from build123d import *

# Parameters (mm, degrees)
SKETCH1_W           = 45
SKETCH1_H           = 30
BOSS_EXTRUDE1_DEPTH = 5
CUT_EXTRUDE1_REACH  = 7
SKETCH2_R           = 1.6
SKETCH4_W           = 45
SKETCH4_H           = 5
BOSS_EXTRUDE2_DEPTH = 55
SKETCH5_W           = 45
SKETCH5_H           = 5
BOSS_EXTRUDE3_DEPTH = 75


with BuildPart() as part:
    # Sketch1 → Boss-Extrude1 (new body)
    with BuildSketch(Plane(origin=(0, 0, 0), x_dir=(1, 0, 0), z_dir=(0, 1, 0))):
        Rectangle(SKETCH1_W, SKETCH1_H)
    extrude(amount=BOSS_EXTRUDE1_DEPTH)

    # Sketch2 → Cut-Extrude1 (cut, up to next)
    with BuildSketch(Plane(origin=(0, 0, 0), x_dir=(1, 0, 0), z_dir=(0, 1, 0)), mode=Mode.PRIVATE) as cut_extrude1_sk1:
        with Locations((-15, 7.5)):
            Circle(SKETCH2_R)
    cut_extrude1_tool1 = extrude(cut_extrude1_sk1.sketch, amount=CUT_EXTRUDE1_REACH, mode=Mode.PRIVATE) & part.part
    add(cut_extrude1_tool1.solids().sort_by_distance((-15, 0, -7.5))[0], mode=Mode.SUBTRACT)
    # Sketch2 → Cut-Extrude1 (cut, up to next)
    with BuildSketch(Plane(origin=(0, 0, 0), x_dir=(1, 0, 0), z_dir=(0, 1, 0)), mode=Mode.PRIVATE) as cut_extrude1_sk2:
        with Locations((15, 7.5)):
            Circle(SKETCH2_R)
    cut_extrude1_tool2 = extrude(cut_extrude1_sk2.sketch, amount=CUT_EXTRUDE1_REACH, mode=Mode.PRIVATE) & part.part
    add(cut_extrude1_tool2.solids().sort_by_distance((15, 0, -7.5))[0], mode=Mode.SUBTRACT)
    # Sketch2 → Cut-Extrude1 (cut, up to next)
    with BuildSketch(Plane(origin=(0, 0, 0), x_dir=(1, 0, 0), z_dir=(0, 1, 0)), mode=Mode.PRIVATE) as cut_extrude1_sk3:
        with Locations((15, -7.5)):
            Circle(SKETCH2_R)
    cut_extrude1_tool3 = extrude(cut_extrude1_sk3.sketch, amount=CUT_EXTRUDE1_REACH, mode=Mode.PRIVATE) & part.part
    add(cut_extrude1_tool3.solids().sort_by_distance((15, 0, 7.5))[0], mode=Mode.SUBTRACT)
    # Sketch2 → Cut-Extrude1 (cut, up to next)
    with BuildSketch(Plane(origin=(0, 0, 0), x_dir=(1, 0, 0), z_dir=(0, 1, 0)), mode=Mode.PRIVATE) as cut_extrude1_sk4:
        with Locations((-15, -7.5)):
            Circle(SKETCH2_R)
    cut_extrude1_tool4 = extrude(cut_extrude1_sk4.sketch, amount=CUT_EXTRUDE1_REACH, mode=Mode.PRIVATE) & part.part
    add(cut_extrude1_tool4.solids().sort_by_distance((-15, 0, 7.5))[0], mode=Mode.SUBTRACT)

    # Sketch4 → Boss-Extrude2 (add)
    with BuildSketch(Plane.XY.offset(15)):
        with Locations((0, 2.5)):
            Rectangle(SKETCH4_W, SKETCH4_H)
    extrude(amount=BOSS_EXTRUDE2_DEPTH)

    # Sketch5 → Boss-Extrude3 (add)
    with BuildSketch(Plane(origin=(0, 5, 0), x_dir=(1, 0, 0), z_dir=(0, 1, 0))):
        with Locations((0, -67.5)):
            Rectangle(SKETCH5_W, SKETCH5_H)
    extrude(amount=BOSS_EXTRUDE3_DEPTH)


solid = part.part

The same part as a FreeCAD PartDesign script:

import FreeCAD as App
import Part
import Sketcher

V = App.Vector
Q = App.Units.Quantity

doc = App.newDocument("Part")
body = doc.addObject("PartDesign::Body", "Body")

# Sketch on XZ plane
sketch1 = body.newObject("Sketcher::SketchObject", "Sketch")
sketch1.AttachmentSupport = (doc.getObject("XZ_Plane"), [""])
sketch1.MapMode = "FlatFace"
sketch1.addGeometry(Part.LineSegment(V(-22.5, -15, 0), V(-22.5, 15, 0)), False)
sketch1.addGeometry(Part.LineSegment(V(-22.5, 15, 0), V(22.5, 15, 0)), False)
sketch1.addGeometry(Part.LineSegment(V(22.5, 15, 0), V(22.5, -15, 0)), False)
sketch1.addGeometry(Part.LineSegment(V(22.5, -15, 0), V(-22.5, -15, 0)), False)
sketch1.addConstraint(Sketcher.Constraint("Coincident", 0, 2, 1, 1))
sketch1.addConstraint(Sketcher.Constraint("Coincident", 1, 2, 2, 1))
sketch1.addConstraint(Sketcher.Constraint("Coincident", 2, 2, 3, 1))
sketch1.addConstraint(Sketcher.Constraint("Coincident", 3, 2, 0, 1))
sketch1.addConstraint(Sketcher.Constraint("Vertical", 0))
sketch1.addConstraint(Sketcher.Constraint("Horizontal", 1))
sketch1.addConstraint(Sketcher.Constraint("Vertical", 2))
sketch1.addConstraint(Sketcher.Constraint("Horizontal", 3))
sketch1.addConstraint(Sketcher.Constraint("Symmetric", 0, 2, 2, 2, -1, 1))
sketch1.addConstraint(Sketcher.Constraint("DistanceX", 1, 1, 1, 2, Q("45 mm")))
sketch1.addConstraint(Sketcher.Constraint("DistanceY", 0, 1, 0, 2, Q("30 mm")))
pad1 = body.newObject("PartDesign::Pad", "Pad")
pad1.Profile = sketch1
pad1.Length = 5
pad1.Reversed = True

# Sketch on XZ plane
sketch2 = body.newObject("Sketcher::SketchObject", "Sketch001")
sketch2.AttachmentSupport = (doc.getObject("XZ_Plane"), [""])
sketch2.MapMode = "FlatFace"
sketch2.addGeometry(Part.Circle(V(-15, -7.5, 0), V(0, 0, 1), 1.6), False)
sketch2.addConstraint(Sketcher.Constraint("Diameter", 0, Q("3.2 mm")))
sketch2.addConstraint(Sketcher.Constraint("DistanceX", 0, 3, -1, 1, Q("15 mm")))
sketch2.addConstraint(Sketcher.Constraint("DistanceY", 0, 3, -1, 1, Q("7.5 mm")))
pocket1 = body.newObject("PartDesign::Pocket", "Pocket")
pocket1.Profile = sketch2
pocket1.Type = "UpToFirst"

# Sketch on XZ plane
sketch3 = body.newObject("Sketcher::SketchObject", "Sketch002")
sketch3.AttachmentSupport = (doc.getObject("XZ_Plane"), [""])
sketch3.MapMode = "FlatFace"
sketch3.addGeometry(Part.Circle(V(15, -7.5, 0), V(0, 0, 1), 1.6), False)
sketch3.addConstraint(Sketcher.Constraint("Diameter", 0, Q("3.2 mm")))
sketch3.addConstraint(Sketcher.Constraint("DistanceX", -1, 1, 0, 3, Q("15 mm")))
sketch3.addConstraint(Sketcher.Constraint("DistanceY", 0, 3, -1, 1, Q("7.5 mm")))
pocket2 = body.newObject("PartDesign::Pocket", "Pocket001")
pocket2.Profile = sketch3
pocket2.Type = "UpToFirst"

# Sketch on XZ plane
sketch4 = body.newObject("Sketcher::SketchObject", "Sketch003")
sketch4.AttachmentSupport = (doc.getObject("XZ_Plane"), [""])
sketch4.MapMode = "FlatFace"
sketch4.addGeometry(Part.Circle(V(15, 7.5, 0), V(0, 0, 1), 1.6), False)
sketch4.addConstraint(Sketcher.Constraint("Diameter", 0, Q("3.2 mm")))
sketch4.addConstraint(Sketcher.Constraint("DistanceX", -1, 1, 0, 3, Q("15 mm")))
sketch4.addConstraint(Sketcher.Constraint("DistanceY", -1, 1, 0, 3, Q("7.5 mm")))
pocket3 = body.newObject("PartDesign::Pocket", "Pocket002")
pocket3.Profile = sketch4
pocket3.Type = "UpToFirst"

# Sketch on XZ plane
sketch5 = body.newObject("Sketcher::SketchObject", "Sketch004")
sketch5.AttachmentSupport = (doc.getObject("XZ_Plane"), [""])
sketch5.MapMode = "FlatFace"
sketch5.addGeometry(Part.Circle(V(-15, 7.5, 0), V(0, 0, 1), 1.6), False)
sketch5.addConstraint(Sketcher.Constraint("Diameter", 0, Q("3.2 mm")))
sketch5.addConstraint(Sketcher.Constraint("DistanceX", 0, 3, -1, 1, Q("15 mm")))
sketch5.addConstraint(Sketcher.Constraint("DistanceY", -1, 1, 0, 3, Q("7.5 mm")))
pocket4 = body.newObject("PartDesign::Pocket", "Pocket003")
pocket4.Profile = sketch5
pocket4.Type = "UpToFirst"

# Sketch on XY plane
sketch6 = body.newObject("Sketcher::SketchObject", "Sketch005")
sketch6.AttachmentSupport = (doc.getObject("XY_Plane"), [""])
sketch6.MapMode = "FlatFace"
sketch6.AttachmentOffset = App.Placement(V(0, 0, 15), App.Rotation())
sketch6.addGeometry(Part.LineSegment(V(-22.5, 5, 0), V(-22.5, 0, 0)), False)
sketch6.addGeometry(Part.LineSegment(V(-22.5, 0, 0), V(22.5, 0, 0)), False)
sketch6.addGeometry(Part.LineSegment(V(22.5, 0, 0), V(22.5, 5, 0)), False)
sketch6.addGeometry(Part.LineSegment(V(22.5, 5, 0), V(-22.5, 5, 0)), False)
sketch6.addConstraint(Sketcher.Constraint("Coincident", 0, 2, 1, 1))
sketch6.addConstraint(Sketcher.Constraint("Coincident", 1, 2, 2, 1))
sketch6.addConstraint(Sketcher.Constraint("Coincident", 2, 2, 3, 1))
sketch6.addConstraint(Sketcher.Constraint("Coincident", 3, 2, 0, 1))
sketch6.addConstraint(Sketcher.Constraint("Vertical", 0))
sketch6.addConstraint(Sketcher.Constraint("Horizontal", 1))
sketch6.addConstraint(Sketcher.Constraint("Vertical", 2))
sketch6.addConstraint(Sketcher.Constraint("Horizontal", 3))
sketch6.addConstraint(Sketcher.Constraint("Symmetric", 0, 2, 1, 2, -1, 1))
sketch6.addConstraint(Sketcher.Constraint("DistanceX", 1, 1, 1, 2, Q("45 mm")))
sketch6.addConstraint(Sketcher.Constraint("DistanceY", 0, 2, 0, 1, Q("5 mm")))
pad2 = body.newObject("PartDesign::Pad", "Pad001")
pad2.Profile = sketch6
pad2.Length = 55

# Sketch on XZ plane
sketch7 = body.newObject("Sketcher::SketchObject", "Sketch006")
sketch7.AttachmentSupport = (doc.getObject("XZ_Plane"), [""])
sketch7.MapMode = "FlatFace"
sketch7.AttachmentOffset = App.Placement(V(0, 0, -5), App.Rotation())
sketch7.addGeometry(Part.LineSegment(V(-22.5, 65, 0), V(-22.5, 70, 0)), False)
sketch7.addGeometry(Part.LineSegment(V(-22.5, 70, 0), V(22.5, 70, 0)), False)
sketch7.addGeometry(Part.LineSegment(V(22.5, 70, 0), V(22.5, 65, 0)), False)
sketch7.addGeometry(Part.LineSegment(V(22.5, 65, 0), V(-22.5, 65, 0)), False)
sketch7.addConstraint(Sketcher.Constraint("Coincident", 0, 2, 1, 1))
sketch7.addConstraint(Sketcher.Constraint("Coincident", 1, 2, 2, 1))
sketch7.addConstraint(Sketcher.Constraint("Coincident", 2, 2, 3, 1))
sketch7.addConstraint(Sketcher.Constraint("Coincident", 3, 2, 0, 1))
sketch7.addConstraint(Sketcher.Constraint("Vertical", 0))
sketch7.addConstraint(Sketcher.Constraint("Horizontal", 1))
sketch7.addConstraint(Sketcher.Constraint("Vertical", 2))
sketch7.addConstraint(Sketcher.Constraint("Horizontal", 3))
sketch7.addConstraint(Sketcher.Constraint("DistanceX", 1, 1, 1, 2, Q("45 mm")))
sketch7.addConstraint(Sketcher.Constraint("DistanceY", 0, 1, 0, 2, Q("5 mm")))
sketch7.addConstraint(Sketcher.Constraint("DistanceY", -1, 1, 0, 2, Q("70 mm")))
sketch7.addConstraint(Sketcher.Constraint("DistanceX", 0, 2, -1, 1, Q("22.5 mm")))
pad3 = body.newObject("PartDesign::Pad", "Pad002")
pad3.Profile = sketch7
pad3.Length = 75
pad3.Reversed = True

doc.recompute()
